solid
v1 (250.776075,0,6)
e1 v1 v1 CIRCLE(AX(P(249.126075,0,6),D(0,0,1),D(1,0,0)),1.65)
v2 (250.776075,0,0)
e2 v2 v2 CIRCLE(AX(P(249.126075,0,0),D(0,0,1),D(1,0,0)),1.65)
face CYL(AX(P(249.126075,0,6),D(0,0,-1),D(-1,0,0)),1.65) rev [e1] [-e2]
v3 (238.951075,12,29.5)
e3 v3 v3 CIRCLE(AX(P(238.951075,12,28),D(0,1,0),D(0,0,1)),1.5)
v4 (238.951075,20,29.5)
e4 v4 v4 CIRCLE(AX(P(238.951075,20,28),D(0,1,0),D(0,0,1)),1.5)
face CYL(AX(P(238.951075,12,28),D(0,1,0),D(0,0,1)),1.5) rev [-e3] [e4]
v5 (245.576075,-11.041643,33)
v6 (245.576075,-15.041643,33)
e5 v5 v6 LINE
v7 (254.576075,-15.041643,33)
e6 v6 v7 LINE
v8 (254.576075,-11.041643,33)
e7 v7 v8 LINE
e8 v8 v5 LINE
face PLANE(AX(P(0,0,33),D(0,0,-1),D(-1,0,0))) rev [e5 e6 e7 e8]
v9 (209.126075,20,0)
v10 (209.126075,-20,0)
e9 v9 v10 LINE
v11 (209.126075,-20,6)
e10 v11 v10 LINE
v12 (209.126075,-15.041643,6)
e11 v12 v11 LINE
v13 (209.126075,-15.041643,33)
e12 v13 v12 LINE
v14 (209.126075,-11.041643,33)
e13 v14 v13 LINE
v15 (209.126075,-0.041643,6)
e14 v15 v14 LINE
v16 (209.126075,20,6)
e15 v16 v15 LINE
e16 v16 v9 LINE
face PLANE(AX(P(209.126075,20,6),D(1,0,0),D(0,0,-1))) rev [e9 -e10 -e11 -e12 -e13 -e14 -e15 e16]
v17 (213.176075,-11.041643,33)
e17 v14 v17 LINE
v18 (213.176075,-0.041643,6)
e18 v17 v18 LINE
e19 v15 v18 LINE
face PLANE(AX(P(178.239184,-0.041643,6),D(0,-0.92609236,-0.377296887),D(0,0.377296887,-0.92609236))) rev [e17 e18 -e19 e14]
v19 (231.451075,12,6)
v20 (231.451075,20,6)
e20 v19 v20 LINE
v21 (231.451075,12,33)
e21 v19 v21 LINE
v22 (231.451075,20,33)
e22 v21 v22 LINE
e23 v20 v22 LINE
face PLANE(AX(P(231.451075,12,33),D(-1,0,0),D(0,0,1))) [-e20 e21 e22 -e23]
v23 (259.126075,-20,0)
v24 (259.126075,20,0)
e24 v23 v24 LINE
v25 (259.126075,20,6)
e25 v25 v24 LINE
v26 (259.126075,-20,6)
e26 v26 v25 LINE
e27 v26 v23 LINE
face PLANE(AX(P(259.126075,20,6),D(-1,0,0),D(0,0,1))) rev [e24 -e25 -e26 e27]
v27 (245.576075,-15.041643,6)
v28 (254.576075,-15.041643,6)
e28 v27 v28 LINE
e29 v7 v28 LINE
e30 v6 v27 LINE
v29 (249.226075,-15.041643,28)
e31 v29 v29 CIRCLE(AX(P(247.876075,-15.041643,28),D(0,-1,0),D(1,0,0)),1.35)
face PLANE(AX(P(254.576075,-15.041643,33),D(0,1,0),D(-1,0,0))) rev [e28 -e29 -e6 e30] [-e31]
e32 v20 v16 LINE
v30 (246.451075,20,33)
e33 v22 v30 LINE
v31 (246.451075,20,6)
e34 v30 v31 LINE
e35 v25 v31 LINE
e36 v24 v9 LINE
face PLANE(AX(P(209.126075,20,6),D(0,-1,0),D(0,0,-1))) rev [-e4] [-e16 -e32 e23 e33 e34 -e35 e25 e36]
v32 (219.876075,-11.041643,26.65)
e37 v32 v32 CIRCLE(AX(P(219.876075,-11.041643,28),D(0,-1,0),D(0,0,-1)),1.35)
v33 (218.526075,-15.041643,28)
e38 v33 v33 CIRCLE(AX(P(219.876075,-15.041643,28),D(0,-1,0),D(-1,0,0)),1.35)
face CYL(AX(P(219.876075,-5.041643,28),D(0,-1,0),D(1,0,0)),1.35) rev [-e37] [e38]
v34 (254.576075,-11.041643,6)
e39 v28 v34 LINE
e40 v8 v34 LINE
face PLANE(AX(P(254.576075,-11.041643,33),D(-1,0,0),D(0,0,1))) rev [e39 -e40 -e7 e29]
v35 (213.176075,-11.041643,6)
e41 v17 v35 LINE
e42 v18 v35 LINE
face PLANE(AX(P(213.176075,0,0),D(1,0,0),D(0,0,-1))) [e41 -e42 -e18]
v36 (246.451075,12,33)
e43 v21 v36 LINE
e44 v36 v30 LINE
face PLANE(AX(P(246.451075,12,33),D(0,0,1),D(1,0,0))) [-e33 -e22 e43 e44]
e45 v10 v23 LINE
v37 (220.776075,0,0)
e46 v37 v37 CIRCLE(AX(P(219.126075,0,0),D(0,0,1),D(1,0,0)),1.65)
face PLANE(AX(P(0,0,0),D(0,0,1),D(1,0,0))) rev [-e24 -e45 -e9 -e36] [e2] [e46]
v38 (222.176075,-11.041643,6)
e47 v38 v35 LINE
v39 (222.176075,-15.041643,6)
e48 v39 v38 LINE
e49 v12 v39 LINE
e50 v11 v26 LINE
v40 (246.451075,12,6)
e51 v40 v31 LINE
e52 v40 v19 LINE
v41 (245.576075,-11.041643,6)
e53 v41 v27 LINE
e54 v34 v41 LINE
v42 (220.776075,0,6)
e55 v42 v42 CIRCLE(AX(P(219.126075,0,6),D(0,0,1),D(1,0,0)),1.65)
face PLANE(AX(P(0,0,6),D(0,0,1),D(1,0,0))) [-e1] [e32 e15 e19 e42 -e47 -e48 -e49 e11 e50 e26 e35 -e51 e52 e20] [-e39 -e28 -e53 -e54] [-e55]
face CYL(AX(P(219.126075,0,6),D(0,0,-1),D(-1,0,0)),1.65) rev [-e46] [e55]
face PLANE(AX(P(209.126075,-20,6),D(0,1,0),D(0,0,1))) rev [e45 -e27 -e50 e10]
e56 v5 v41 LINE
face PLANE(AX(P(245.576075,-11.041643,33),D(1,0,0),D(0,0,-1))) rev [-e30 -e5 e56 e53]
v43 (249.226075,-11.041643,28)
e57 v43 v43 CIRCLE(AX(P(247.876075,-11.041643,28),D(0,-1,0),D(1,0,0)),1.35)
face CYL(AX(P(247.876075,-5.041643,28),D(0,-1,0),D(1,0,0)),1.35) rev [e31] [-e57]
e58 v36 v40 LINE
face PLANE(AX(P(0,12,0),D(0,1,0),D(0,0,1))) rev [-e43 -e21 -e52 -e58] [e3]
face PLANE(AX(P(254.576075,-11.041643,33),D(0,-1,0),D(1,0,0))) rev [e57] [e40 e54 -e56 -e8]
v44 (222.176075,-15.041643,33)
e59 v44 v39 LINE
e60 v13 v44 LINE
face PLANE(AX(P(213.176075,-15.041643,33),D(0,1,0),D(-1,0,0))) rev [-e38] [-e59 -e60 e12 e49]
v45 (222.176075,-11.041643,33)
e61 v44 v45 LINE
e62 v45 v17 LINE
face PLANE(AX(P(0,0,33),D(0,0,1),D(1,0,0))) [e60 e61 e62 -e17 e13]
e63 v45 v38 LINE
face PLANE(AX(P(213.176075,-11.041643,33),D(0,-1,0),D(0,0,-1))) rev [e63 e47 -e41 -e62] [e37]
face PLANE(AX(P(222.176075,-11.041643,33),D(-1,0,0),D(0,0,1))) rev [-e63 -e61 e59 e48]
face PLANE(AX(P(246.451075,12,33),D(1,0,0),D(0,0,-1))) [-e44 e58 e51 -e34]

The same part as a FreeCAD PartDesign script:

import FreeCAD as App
import Part
import Sketcher

V = App.Vector

doc = App.newDocument("Part")
body = doc.addObject("PartDesign::Body", "Body")

# Sketch on XY plane
sketch1 = doc.addObject("Sketcher::SketchObject", "Sketch")
body.addObject(sketch1)
sketch1.AttachmentSupport = (doc.XY_Plane, [""])
sketch1.MapMode = "FlatFace"
sketch1.addGeometry([
    Part.LineSegment(V(209.1, 20, 0), V(209.1, -20, 0)),  # 0
    Part.LineSegment(V(209.1, -20, 0), V(259.1, -20, 0)),  # 1
    Part.LineSegment(V(259.1, -20, 0), V(259.1, 20, 0)),  # 2
    Part.LineSegment(V(259.1, 20, 0), V(209.1, 20, 0)),  # 3
    Part.Circle(V(219.1, 0, 0), V(0, 0, 1), 1.6),  # 4
    Part.Circle(V(249.1, 0, 0), V(0, 0, 1), 1.6),  # 5
], False)
sketch1.addConstraint([
    Sketcher.Constraint("Coincident", 0, 2, 1, 1),
    Sketcher.Constraint("Coincident", 1, 2, 2, 1),
    Sketcher.Constraint("Coincident", 2, 2, 3, 1),
    Sketcher.Constraint("Coincident", 3, 2, 0, 1),
    Sketcher.Constraint("Vertical", 0),
    Sketcher.Constraint("Horizontal", 1),
    Sketcher.Constraint("Vertical", 2),
    Sketcher.Constraint("Horizontal", 3),
    Sketcher.Constraint("Equal", 4, 5),
    Sketcher.Constraint("PointOnObject", 4, 3, -1),
    Sketcher.Constraint("PointOnObject", 5, 3, -1),
    Sketcher.Constraint("Diameter", 4, 3.3),
    Sketcher.Constraint("DistanceX", 1, 1, 1, 2, 50.0),
    Sketcher.Constraint("DistanceY", 0, 2, 0, 1, 40.0),
    Sketcher.Constraint("DistanceY", 0, 2, -1, 1, 20.0),
    Sketcher.Constraint("DistanceX", 4, 3, 5, 3, 30.0),
    Sketcher.Constraint("DistanceX", 0, 2, 4, 3, 10.0),
    Sketcher.Constraint("DistanceX", -1, 1, 4, 3, 219.126075),
])
pad1 = doc.addObject("PartDesign::Pad", "Pad")
body.addObject(pad1)
pad1.Profile = sketch1
pad1.Length = 6

# Sketch on XY plane
sketch2 = doc.addObject("Sketcher::SketchObject", "Sketch001")
body.addObject(sketch2)
sketch2.AttachmentSupport = (doc.XY_Plane, [""])
sketch2.MapMode = "FlatFace"
sketch2.AttachmentOffset = App.Placement(V(0, 0, 6), App.Rotation())
sketch2.addGeometry([
    Part.LineSegment(V(213.2, -11, 0), V(213.2, -15, 0)),  # 0
    Part.LineSegment(V(213.2, -15, 0), V(222.2, -15, 0)),  # 1
    Part.LineSegment(V(222.2, -15, 0), V(222.2, -11, 0)),  # 2
    Part.LineSegment(V(222.2, -11, 0), V(213.2, -11, 0)),  # 3
    Part.LineSegment(V(245.6, -11, 0), V(245.6, -15, 0)),  # 4
    Part.LineSegment(V(245.6, -15, 0), V(254.6, -15, 0)),  # 5
    Part.LineSegment(V(254.6, -15, 0), V(254.6, -11, 0)),  # 6
    Part.LineSegment(V(254.6, -11, 0), V(245.6, -11, 0)),  # 7
], False)
sketch2.addConstraint([
    Sketcher.Constraint("Coincident", 0, 2, 1, 1),
    Sketcher.Constraint("Coincident", 1, 2, 2, 1),
    Sketcher.Constraint("Coincident", 2, 2, 3, 1),
    Sketcher.Constraint("Coincident", 3, 2, 0, 1),
    Sketcher.Constraint("Coincident", 4, 2, 5, 1),
    Sketcher.Constraint("Coincident", 5, 2, 6, 1),
    Sketcher.Constraint("Coincident", 6, 2, 7, 1),
    Sketcher.Constraint("Coincident", 7, 2, 4, 1),
    Sketcher.Constraint("Vertical", 0),
    Sketcher.Constraint("Horizontal", 1),
    Sketcher.Constraint("Vertical", 2),
    Sketcher.Constraint("Horizontal", 3),
    Sketcher.Constraint("Vertical", 4),
    Sketcher.Constraint("Horizontal", 5),
    Sketcher.Constraint("Vertical", 6),
    Sketcher.Constraint("Horizontal", 7),
    Sketcher.Constraint("Horizontal", 1, 2, 4, 2),
    Sketcher.Constraint("Horizontal", 3, 2, 6, 2),
    Sketcher.Constraint("Equal", 3, 5),
    Sketcher.Constraint("DistanceX", 1, 1, 1, 2, 9.0),
    Sketcher.Constraint("DistanceY", 0, 2, 0, 1, 4.0),
    Sketcher.Constraint("DistanceX", 1, 2, 4, 2, 23.4),
    Sketcher.Constraint("DistanceX", -1, 1, 0, 2, 213.176075),
    Sketcher.Constraint("DistanceY", 0, 2, -1, 1, 15.041643),
])
pad2 = doc.addObject("PartDesign::Pad", "Pad001")
body.addObject(pad2)
pad2.Profile = sketch2
pad2.Length = 27

# Sketch on XZ plane
sketch3 = doc.addObject("Sketcher::SketchObject", "Sketch002")
body.addObject(sketch3)
sketch3.AttachmentSupport = (doc.XZ_Plane, [""])
sketch3.MapMode = "FlatFace"
sketch3.AttachmentOffset = App.Placement(V(0, 0, 15.041643), App.Rotation())
sketch3.addGeometry([
    Part.Circle(V(247.9, 28, 0), V(0, 0, 1), 1.4),
    Part.Circle(V(219.9, 28, 0), V(0, 0, 1), 1.4),
], False)
sketch3.addConstraint([
    Sketcher.Constraint("Equal", 0, 1),
    Sketcher.Constraint("Horizontal", 0, 3, 1, 3),
    Sketcher.Constraint("Diameter", 0, 2.7),
    Sketcher.Constraint("DistanceY", -1, 1, 0, 3, 28.0),
    Sketcher.Constraint("DistanceX", 1, 3, 0, 3, 28.0),
    Sketcher.Constraint("DistanceX", -1, 1, 0, 3, 247.876075),
])
pocket1 = doc.addObject("PartDesign::Pocket", "Pocket")
body.addObject(pocket1)
pocket1.Profile = sketch3
pocket1.Length = 10

# Sketch on YZ plane
sketch4 = doc.addObject("Sketcher::SketchObject", "Sketch003")
body.addObject(sketch4)
sketch4.AttachmentSupport = (doc.YZ_Plane, [""])
sketch4.MapMode = "FlatFace"
sketch4.AttachmentOffset = App.Placement(V(0, 0, 213.176075), App.Rotation())
sketch4.addGeometry([
    Part.LineSegment(V(0, 6, 0), V(-15, 6, 0)),
    Part.LineSegment(V(-15, 6, 0), V(-15, 33, 0)),
    Part.LineSegment(V(-15, 33, 0), V(-11, 33, 0)),
    Part.LineSegment(V(-11, 33, 0), V(0, 6, 0)),
], False)
sketch4.addConstraint([
    Sketcher.Constraint("Coincident", 0, 2, 1, 1),
    Sketcher.Constraint("Coincident", 1, 2, 2, 1),
    Sketcher.Constraint("Coincident", 2, 2, 3, 1),
    Sketcher.Constraint("Coincident", 3, 2, 0, 1),
    Sketcher.Constraint("Horizontal", 0),
    Sketcher.Constraint("Vertical", 1),
    Sketcher.Constraint("Horizontal", 2),
    Sketcher.Constraint("DistanceX", 0, 2, 0, 1, 15.0),
    Sketcher.Constraint("DistanceX", 2, 1, 2, 2, 4.0),
    Sketcher.Constraint("DistanceY", 1, 1, 1, 2, 27.0),
    Sketcher.Constraint("DistanceY", -1, 1, 0, 2, 6.0),
    Sketcher.Constraint("DistanceX", 0, 2, -1, 1, 15.041643),
])
pad3 = doc.addObject("PartDesign::Pad", "Pad002")
body.addObject(pad3)
pad3.Profile = sketch4
pad3.Length = 4.05
pad3.Reversed = True

# Sketch on XZ plane
sketch5 = doc.addObject("Sketcher::SketchObject", "Sketch004")
body.addObject(sketch5)
sketch5.AttachmentSupport = (doc.XZ_Plane, [""])
sketch5.MapMode = "FlatFace"
sketch5.AttachmentOffset = App.Placement(V(0, 0, -20), App.Rotation())
sketch5.addGeometry([
    Part.LineSegment(V(231.5, 6, 0), V(231.5, 33, 0)),  # 0
    Part.LineSegment(V(231.5, 33, 0), V(246.5, 33, 0)),  # 1
    Part.LineSegment(V(246.5, 33, 0), V(246.5, 6, 0)),  # 2
    Part.LineSegment(V(246.5, 6, 0), V(231.5, 6, 0)),  # 3
    Part.Circle(V(239, 28, 0), V(0, 0, 1), 1.5),  # 4
], False)
sketch5.addConstraint([
    Sketcher.Constraint("Coincident", 0, 2, 1, 1),
    Sketcher.Constraint("Coincident", 1, 2, 2, 1),
    Sketcher.Constraint("Coincident", 2, 2, 3, 1),
    Sketcher.Constraint("Coincident", 3, 2, 0, 1),
    Sketcher.Constraint("Vertical", 0),
    Sketcher.Constraint("Horizontal", 1),
    Sketcher.Constraint("Vertical", 2),
    Sketcher.Constraint("Horizontal", 3),
    Sketcher.Constraint("Diameter", 4, 3.0),
    Sketcher.Constraint("DistanceX", 1, 1, 1, 2, 15.0),
    Sketcher.Constraint("DistanceY", 0, 1, 0, 2, 27.0),
    Sketcher.Constraint("DistanceY", -1, 1, 4, 3, 28.0),
    Sketcher.Constraint("DistanceY", -1, 1, 0, 2, 33.0),
    Sketcher.Constraint("DistanceX", 0, 2, 4, 3, 7.5),
    Sketcher.Constraint("DistanceX", -1, 1, 4, 3, 238.951075),
])
pad4 = doc.addObject("PartDesign::Pad", "Pad003")
body.addObject(pad4)
pad4.Profile = sketch5
pad4.Length = 8

doc.recompute()
